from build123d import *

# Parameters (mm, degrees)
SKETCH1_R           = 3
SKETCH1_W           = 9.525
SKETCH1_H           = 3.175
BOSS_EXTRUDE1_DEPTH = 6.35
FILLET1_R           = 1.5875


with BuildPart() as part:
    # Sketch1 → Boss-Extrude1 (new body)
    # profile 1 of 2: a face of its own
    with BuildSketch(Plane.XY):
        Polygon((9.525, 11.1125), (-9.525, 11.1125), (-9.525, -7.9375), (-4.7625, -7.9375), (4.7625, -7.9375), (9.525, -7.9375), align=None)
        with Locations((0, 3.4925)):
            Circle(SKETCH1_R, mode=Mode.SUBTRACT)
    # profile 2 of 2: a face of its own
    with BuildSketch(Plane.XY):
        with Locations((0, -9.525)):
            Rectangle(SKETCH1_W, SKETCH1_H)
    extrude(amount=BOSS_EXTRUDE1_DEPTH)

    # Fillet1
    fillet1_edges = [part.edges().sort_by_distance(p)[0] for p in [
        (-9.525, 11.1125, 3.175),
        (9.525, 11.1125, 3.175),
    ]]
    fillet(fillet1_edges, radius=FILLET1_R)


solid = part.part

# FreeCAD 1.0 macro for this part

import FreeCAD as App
import Part
import Sketcher
from FreeCAD import Vector
Q = App.Units.Quantity


def edges_at(feature, points):
    """Names of the edges that pass closest to the given points."""
    edges = feature.Shape.Edges
    near = lambda p: min(range(len(edges)), key=lambda i: edges[i].distToShape(Part.Vertex(*p))[0])
    return sorted({f"Edge{near(p) + 1}" for p in points})

doc = App.newDocument("Part")
body = doc.addObject("PartDesign::Body", "Body")

# Sketch on XY plane
sketch1 = body.newObject("Sketcher::SketchObject", "Sketch")
sketch1.AttachmentSupport = (doc.getObject("XY_Plane"), [""])
sketch1.MapMode = "FlatFace"
sketch1.addGeometry([
    Part.LineSegment(Vector(9.525, 11.1125, 0), Vector(-9.525, 11.1125, 0)),  # 0
    Part.LineSegment(Vector(-9.525, 11.1125, 0), Vector(-9.525, -7.9375, 0)),  # 1
    Part.LineSegment(Vector(-9.525, -7.9375, 0), Vector(-4.7625, -7.9375, 0)),  # 2
    Part.LineSegment(Vector(-4.7625, -7.9375, 0), Vector(-4.7625, -11.1125, 0)),  # 3
    Part.LineSegment(Vector(-4.7625, -11.1125, 0), Vector(4.7625, -11.1125, 0)),  # 4
    Part.LineSegment(Vector(4.7625, -11.1125, 0), Vector(4.7625, -7.9375, 0)),  # 5
    Part.LineSegment(Vector(4.7625, -7.9375, 0), Vector(9.525, -7.9375, 0)),  # 6
    Part.LineSegment(Vector(9.525, -7.9375, 0), Vector(9.525, 11.1125, 0)),  # 7
    Part.Circle(Vector(0, 3.4925, 0), Vector(0, 0, 1), 3),  # 8
], False)
sketch1.addConstraint([
    Sketcher.Constraint("Coincident", 0, 2, 1, 1),
    Sketcher.Constraint("Coincident", 1, 2, 2, 1),
    Sketcher.Constraint("Coincident", 2, 2, 3, 1),
    Sketcher.Constraint("Coincident", 3, 2, 4, 1),
    Sketcher.Constraint("Coincident", 4, 2, 5, 1),
    Sketcher.Constraint("Coincident", 5, 2, 6, 1),
    Sketcher.Constraint("Coincident", 6, 2, 7, 1),
    Sketcher.Constraint("Coincident", 7, 2, 0, 1),
    Sketcher.Constraint("Horizontal", 0),
    Sketcher.Constraint("Vertical", 1),
    Sketcher.Constraint("Horizontal", 2),
    Sketcher.Constraint("Vertical", 3),
    Sketcher.Constraint("Horizontal", 4),
    Sketcher.Constraint("Vertical", 5),
    Sketcher.Constraint("Horizontal", 6),
    Sketcher.Constraint("Vertical", 7),
    Sketcher.Constraint("Symmetric", 2, 2, 5, 2, -2),
    Sketcher.Constraint("PointOnObject", 8, 3, -2),
    Sketcher.Constraint("Equal", 2, 6),
    Sketcher.Constraint("Equal", 0, 1),
    Sketcher.Constraint("DistanceX", 0, 2, 0, 1, Q("0.75 in")),
    Sketcher.Constraint("DistanceY", 8, 3, 0, 2, Q("0.3 in")),
    Sketcher.Constraint("Diameter", 8, Q("6 mm")),
    Sketcher.Constraint("DistanceX", 2, 1, 2, 2, Q("0.1875 in")),
    Sketcher.Constraint("DistanceY", 3, 2, 3, 1, Q("0.125 in")),
    Sketcher.Constraint("DistanceY", -1, 1, 0, 2, Q("0.4375 in")),
])
pad1 = body.newObject("PartDesign::Pad", "Pad")
pad1.Profile = sketch1
pad1.Length = Q("0.25 in")
doc.recompute()

fillet = body.newObject("PartDesign::Fillet", "Fillet")
fillet.Base = (pad1, edges_at(pad1, [(-9.525, 11.113, 3.175), (9.525, 11.113, 3.175)]))
fillet.Radius = Q("0.0625 in")

doc.recompute()
